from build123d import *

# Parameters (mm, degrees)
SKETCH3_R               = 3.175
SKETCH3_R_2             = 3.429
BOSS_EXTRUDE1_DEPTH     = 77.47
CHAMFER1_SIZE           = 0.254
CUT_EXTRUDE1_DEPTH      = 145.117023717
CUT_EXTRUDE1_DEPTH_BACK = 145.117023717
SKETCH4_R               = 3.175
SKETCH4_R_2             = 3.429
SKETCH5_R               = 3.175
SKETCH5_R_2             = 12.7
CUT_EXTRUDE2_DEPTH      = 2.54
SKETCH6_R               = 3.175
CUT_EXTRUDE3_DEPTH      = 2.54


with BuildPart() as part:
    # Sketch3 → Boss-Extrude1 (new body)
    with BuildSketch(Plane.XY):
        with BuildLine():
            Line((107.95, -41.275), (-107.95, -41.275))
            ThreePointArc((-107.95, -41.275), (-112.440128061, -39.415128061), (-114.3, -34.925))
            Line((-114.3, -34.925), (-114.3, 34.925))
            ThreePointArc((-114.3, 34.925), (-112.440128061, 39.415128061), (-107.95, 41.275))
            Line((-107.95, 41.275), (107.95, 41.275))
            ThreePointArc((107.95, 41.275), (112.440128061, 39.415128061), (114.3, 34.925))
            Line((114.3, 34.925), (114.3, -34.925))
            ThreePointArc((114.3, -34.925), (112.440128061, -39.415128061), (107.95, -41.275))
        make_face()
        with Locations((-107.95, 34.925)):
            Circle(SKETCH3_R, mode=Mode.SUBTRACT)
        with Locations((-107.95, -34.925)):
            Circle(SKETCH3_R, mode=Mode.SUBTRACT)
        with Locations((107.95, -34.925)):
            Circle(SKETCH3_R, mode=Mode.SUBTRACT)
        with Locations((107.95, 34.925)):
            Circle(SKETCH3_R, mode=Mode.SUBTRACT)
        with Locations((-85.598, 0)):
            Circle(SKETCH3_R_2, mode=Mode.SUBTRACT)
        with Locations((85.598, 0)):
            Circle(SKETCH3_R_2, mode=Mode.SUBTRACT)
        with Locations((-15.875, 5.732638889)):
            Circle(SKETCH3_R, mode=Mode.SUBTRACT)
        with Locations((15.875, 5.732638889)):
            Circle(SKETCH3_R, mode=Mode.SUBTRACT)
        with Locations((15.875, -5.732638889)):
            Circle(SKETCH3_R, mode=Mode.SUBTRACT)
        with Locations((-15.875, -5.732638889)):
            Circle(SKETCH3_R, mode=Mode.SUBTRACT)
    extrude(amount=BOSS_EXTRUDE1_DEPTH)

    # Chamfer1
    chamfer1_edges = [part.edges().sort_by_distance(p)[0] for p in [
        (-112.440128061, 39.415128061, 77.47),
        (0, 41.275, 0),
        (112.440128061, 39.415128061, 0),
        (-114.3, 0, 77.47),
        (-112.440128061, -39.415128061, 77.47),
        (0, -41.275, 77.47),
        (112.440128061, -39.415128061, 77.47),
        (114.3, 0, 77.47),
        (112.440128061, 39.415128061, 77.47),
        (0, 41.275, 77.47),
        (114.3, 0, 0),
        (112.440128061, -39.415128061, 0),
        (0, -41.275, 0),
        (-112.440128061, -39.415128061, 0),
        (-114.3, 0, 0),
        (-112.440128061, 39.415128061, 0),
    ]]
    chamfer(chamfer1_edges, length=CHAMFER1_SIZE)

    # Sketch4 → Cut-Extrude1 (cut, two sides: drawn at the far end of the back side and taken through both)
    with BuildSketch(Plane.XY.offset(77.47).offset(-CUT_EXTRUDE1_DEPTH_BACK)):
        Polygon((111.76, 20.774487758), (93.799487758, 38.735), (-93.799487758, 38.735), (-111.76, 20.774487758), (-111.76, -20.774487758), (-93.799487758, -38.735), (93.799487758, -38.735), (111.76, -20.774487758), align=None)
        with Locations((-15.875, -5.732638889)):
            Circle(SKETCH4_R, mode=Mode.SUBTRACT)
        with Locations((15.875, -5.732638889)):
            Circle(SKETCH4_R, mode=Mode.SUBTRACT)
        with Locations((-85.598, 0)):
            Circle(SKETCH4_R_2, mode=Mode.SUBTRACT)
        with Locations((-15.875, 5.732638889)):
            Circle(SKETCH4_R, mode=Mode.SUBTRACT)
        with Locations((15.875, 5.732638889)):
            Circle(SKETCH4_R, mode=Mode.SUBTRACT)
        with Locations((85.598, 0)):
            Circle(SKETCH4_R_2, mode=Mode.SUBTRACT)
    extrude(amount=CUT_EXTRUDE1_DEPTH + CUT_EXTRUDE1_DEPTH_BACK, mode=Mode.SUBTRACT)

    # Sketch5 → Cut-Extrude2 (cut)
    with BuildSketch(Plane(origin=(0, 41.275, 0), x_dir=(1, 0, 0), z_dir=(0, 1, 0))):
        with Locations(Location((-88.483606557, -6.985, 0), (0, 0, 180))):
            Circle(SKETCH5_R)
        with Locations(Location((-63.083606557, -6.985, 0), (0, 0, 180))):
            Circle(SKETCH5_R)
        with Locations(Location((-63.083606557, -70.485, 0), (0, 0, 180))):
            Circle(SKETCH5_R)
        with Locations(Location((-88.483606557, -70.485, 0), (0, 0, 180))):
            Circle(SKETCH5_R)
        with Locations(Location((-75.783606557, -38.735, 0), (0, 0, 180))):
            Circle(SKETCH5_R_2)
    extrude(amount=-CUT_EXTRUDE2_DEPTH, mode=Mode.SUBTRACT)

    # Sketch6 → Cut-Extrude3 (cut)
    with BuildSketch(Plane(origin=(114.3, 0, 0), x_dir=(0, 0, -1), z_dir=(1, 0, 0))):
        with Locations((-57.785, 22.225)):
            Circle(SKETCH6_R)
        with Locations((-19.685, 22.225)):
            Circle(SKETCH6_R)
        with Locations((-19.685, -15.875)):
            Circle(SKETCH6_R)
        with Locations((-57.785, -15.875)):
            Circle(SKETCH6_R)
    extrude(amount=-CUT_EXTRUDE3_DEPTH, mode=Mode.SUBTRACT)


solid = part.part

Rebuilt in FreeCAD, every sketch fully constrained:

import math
import FreeCAD as App
import Part
import Sketcher
Q = App.Units.Quantity


def edges_at(feature, points):
    """Names of the edges that pass closest to the given points."""
    edges = feature.Shape.Edges
    near = lambda p: min(range(len(edges)), key=lambda i: edges[i].distToShape(Part.Vertex(*p))[0])
    return sorted({f"Edge{near(p) + 1}" for p in points})


def add_polygon(sketch, points):
    """Adds a closed chain of lines whose ends are joined by coincident constraints."""
    first, n = sketch.GeometryCount, len(points)
    for a, b in zip(points, points[1:] + points[:1]):
        sketch.addGeometry(Part.LineSegment(App.Vector(*a, 0), App.Vector(*b, 0)), False)
    for i in range(n):
        sketch.addConstraint(Sketcher.Constraint("Coincident", first + i, 2, first + (i + 1) % n, 1))

doc = App.newDocument("Part")
params = doc.addObject("Spreadsheet::Sheet", "Params")
for row, (alias, value) in enumerate([
    ("sketch1_diameter", "0.25 in"),
    ("sketch1_diameter2", "0.27 in"),
    ("sketch1_radius", "0.25 in"),
    ("sketch1_width", "8.5 in"),
    ("pad1_length", "3.05 in"),
    ("chamfer_size", "0.01 in"),
    ("sketch2_diameter", "0.25 in"),
    ("sketch2_diameter2", "0.27 in"),
    ("sketch2_length", "1 in"),
    ("sketch3_diameter", "1 in"),
    ("sketch3_diameter2", "0.25 in"),
    ("pocket2_length", "0.1 in"),
    ("sketch4_diameter", "0.25 in"),
    ("pocket3_length", "0.1 in"),
], start=1):
    params.set(f"A{row}", alias)
    params.set(f"B{row}", "=" + value)
    params.setAlias(f"B{row}", alias)

body = doc.addObject("PartDesign::Body", "Body")

# Sketch on XY plane
sketch1 = body.newObject("Sketcher::SketchObject", "Sketch")
sketch1.AttachmentSupport = (doc.getObject("XY_Plane"), [""])
sketch1.MapMode = "FlatFace"
sketch1.addGeometry(Part.LineSegment(App.Vector(-108, -41.3, 0), App.Vector(108, -41.3, 0)), False)
sketch1.addGeometry(Part.ArcOfCircle(Part.Circle(App.Vector(108, -34.9, 0), App.Vector(0, 0, 1), 6.3), math.radians(-90), math.radians(0)), False)
sketch1.addGeometry(Part.LineSegment(App.Vector(114.3, -34.9, 0), App.Vector(114.3, 34.9, 0)), False)
sketch1.addGeometry(Part.ArcOfCircle(Part.Circle(App.Vector(108, 34.9, 0), App.Vector(0, 0, 1), 6.3), math.radians(0), math.radians(90)), False)
sketch1.addGeometry(Part.LineSegment(App.Vector(108, 41.3, 0), App.Vector(-108, 41.3, 0)), False)
sketch1.addGeometry(Part.ArcOfCircle(Part.Circle(App.Vector(-108, 34.9, 0), App.Vector(0, 0, 1), 6.3), math.radians(90), math.radians(180)), False)
sketch1.addGeometry(Part.LineSegment(App.Vector(-114.3, 34.9, 0), App.Vector(-114.3, -34.9, 0)), False)
sketch1.addGeometry(Part.ArcOfCircle(Part.Circle(App.Vector(-108, -34.9, 0), App.Vector(0, 0, 1), 6.3), math.radians(180), math.radians(270)), False)
sketch1.addGeometry(Part.Circle(App.Vector(108, -34.9, 0), App.Vector(0, 0, 1), 3.2), False)
sketch1.addGeometry(Part.Circle(App.Vector(15.9, -5.7, 0), App.Vector(0, 0, 1), 3.2), False)
sketch1.addGeometry(Part.Circle(App.Vector(-108, -34.9, 0), App.Vector(0, 0, 1), 3.2), False)
sketch1.addGeometry(Part.Circle(App.Vector(-15.9, -5.7, 0), App.Vector(0, 0, 1), 3.2), False)
sketch1.addGeometry(Part.Circle(App.Vector(85.6, 0, 0), App.Vector(0, 0, 1), 3.4), False)
sketch1.addGeometry(Part.Circle(App.Vector(15.9, 5.7, 0), App.Vector(0, 0, 1), 3.2), False)
sketch1.addGeometry(Part.Circle(App.Vector(108, 34.9, 0), App.Vector(0, 0, 1), 3.2), False)
sketch1.addGeometry(Part.Circle(App.Vector(-15.9, 5.7, 0), App.Vector(0, 0, 1), 3.2), False)
sketch1.addGeometry(Part.Circle(App.Vector(-85.6, 0, 0), App.Vector(0, 0, 1), 3.4), False)
sketch1.addGeometry(Part.Circle(App.Vector(-108, 34.9, 0), App.Vector(0, 0, 1), 3.2), False)
sketch1.addConstraint(Sketcher.Constraint("Tangent", 0, 2, 1, 1))
sketch1.addConstraint(Sketcher.Constraint("Tangent", 1, 2, 2, 1))
sketch1.addConstraint(Sketcher.Constraint("Tangent", 2, 2, 3, 1))
sketch1.addConstraint(Sketcher.Constraint("Tangent", 3, 2, 4, 1))
sketch1.addConstraint(Sketcher.Constraint("Tangent", 4, 2, 5, 1))
sketch1.addConstraint(Sketcher.Constraint("Tangent", 5, 2, 6, 1))
sketch1.addConstraint(Sketcher.Constraint("Tangent", 6, 2, 7, 1))
sketch1.addConstraint(Sketcher.Constraint("Tangent", 7, 2, 0, 1))
sketch1.addConstraint(Sketcher.Constraint("Horizontal", 0))
sketch1.addConstraint(Sketcher.Constraint("Vertical", 2))
sketch1.addConstraint(Sketcher.Constraint("Horizontal", 4))
sketch1.addConstraint(Sketcher.Constraint("Vertical", 6))
sketch1.addConstraint(Sketcher.Constraint("Coincident", 8, 3, 1, 3))
sketch1.addConstraint(Sketcher.Constraint("Coincident", 10, 3, 7, 3))
sketch1.addConstraint(Sketcher.Constraint("Coincident", 14, 3, 3, 3))
sketch1.addConstraint(Sketcher.Constraint("Coincident", 17, 3, 5, 3))
sketch1.addConstraint(Sketcher.Constraint("Equal", 1, 3))
sketch1.addConstraint(Sketcher.Constraint("Equal", 3, 5))
sketch1.addConstraint(Sketcher.Constraint("Equal", 5, 7))
sketch1.addConstraint(Sketcher.Constraint("Equal", 8, 9))
sketch1.addConstraint(Sketcher.Constraint("Equal", 9, 10))
sketch1.addConstraint(Sketcher.Constraint("Equal", 10, 11))
sketch1.addConstraint(Sketcher.Constraint("Equal", 11, 13))
sketch1.addConstraint(Sketcher.Constraint("Equal", 13, 14))
sketch1.addConstraint(Sketcher.Constraint("Equal", 14, 15))
sketch1.addConstraint(Sketcher.Constraint("Equal", 12, 16))
sketch1.addConstraint(Sketcher.Constraint("Equal", 15, 17))
sketch1.addConstraint(Sketcher.Constraint("Symmetric", 1, 3, 5, 3, -1, 1))
sketch1.addConstraint(Sketcher.Constraint("Symmetric", 11, 3, 13, 3, -1, 1))
sketch1.addConstraint(Sketcher.Constraint("Symmetric", 9, 3, 15, 3, -1, 1))
sketch1.addConstraint(Sketcher.Constraint("Symmetric", 12, 3, 16, 3, -1, 1))
sketch1.addConstraint(Sketcher.Constraint("Symmetric", 9, 3, 11, 3, -2))
sketch1.addConstraint(Sketcher.Constraint("PointOnObject", 12, 3, -1))
sketch1.addConstraint(Sketcher.Constraint("Diameter", 8, Q("0.25 in")))
sketch1.addConstraint(Sketcher.Constraint("Diameter", 12, Q("0.27 in")))
sketch1.addConstraint(Sketcher.Constraint("Radius", 1, Q("0.25 in")))
sketch1.addConstraint(Sketcher.Constraint("DistanceX", 0, 1, 0, 2, Q("8.5 in")))
sketch1.addConstraint(Sketcher.Constraint("DistanceY", 0, 2, 14, 3, Q("3 in")))
sketch1.addConstraint(Sketcher.Constraint("DistanceX", -1, 1, 12, 3, Q("3.37 in")))
sketch1.addConstraint(Sketcher.Constraint("DistanceX", 11, 3, 9, 3, Q("1.25 in")))
sketch1.addConstraint(Sketcher.Constraint("DistanceY", 9, 3, -1, 1, 5.732639))
sketch1.setExpression("Constraints[33]", "Params.sketch1_diameter")
sketch1.setExpression("Constraints[34]", "Params.sketch1_diameter2")
sketch1.setExpression("Constraints[35]", "Params.sketch1_radius")
sketch1.setExpression("Constraints[36]", "Params.sketch1_width")
pad1 = body.newObject("PartDesign::Pad", "Pad")
pad1.Profile = sketch1
pad1.setExpression("Length", "Params.pad1_length")
doc.recompute()

chamfer = body.newObject("PartDesign::Chamfer", "Chamfer")
chamfer.Base = (pad1, edges_at(pad1, [
    (-112.44, 39.415, 77.47),
    (0, 41.275, 0),
    (112.44, 39.415, 0),
    (-114.3, 0, 77.47),
    (-112.44, -39.415, 77.47),
    (0, -41.275, 77.47),
    (112.44, -39.415, 77.47),
    (114.3, 0, 77.47),
    (112.44, 39.415, 77.47),
    (0, 41.275, 77.47),
    (114.3, 0, 0),
    (112.44, -39.415, 0),
    (0, -41.275, 0),
    (-112.44, -39.415, 0),
    (-114.3, 0, 0),
    (-112.44, 39.415, 0),
]))
chamfer.setExpression("Size", "Params.chamfer_size")

# Sketch on XY plane
sketch2 = body.newObject("Sketcher::SketchObject", "Sketch001")
sketch2.AttachmentSupport = (doc.getObject("XY_Plane"), [""])
sketch2.MapMode = "FlatFace"
sketch2.AttachmentOffset = App.Placement(App.Vector(0, 0, 3.05 * 25.4), App.Rotation())
add_polygon(sketch2, [(111.8, 20.8), (93.8, 38.7), (-93.8, 38.7), (-111.8, 20.8), (-111.8, -20.8), (-93.8, -38.7), (93.8, -38.7), (111.8, -20.8)])  # lines 0-7
sketch2.addGeometry(Part.Circle(App.Vector(-15.9, -5.7, 0), App.Vector(0, 0, 1), 3.2), False)  # 8
sketch2.addGeometry(Part.Circle(App.Vector(15.9, -5.7, 0), App.Vector(0, 0, 1), 3.2), False)  # 9
sketch2.addGeometry(Part.Circle(App.Vector(-85.6, 0, 0), App.Vector(0, 0, 1), 3.4), False)  # 10
sketch2.addGeometry(Part.Circle(App.Vector(-15.9, 5.7, 0), App.Vector(0, 0, 1), 3.2), False)  # 11
sketch2.addGeometry(Part.Circle(App.Vector(85.6, 0, 0), App.Vector(0, 0, 1), 3.4), False)  # 12
sketch2.addGeometry(Part.Circle(App.Vector(15.9, 5.7, 0), App.Vector(0, 0, 1), 3.2), False)  # 13
sketch2.addConstraint(Sketcher.Constraint("Horizontal", 1))
sketch2.addConstraint(Sketcher.Constraint("Vertical", 3))
sketch2.addConstraint(Sketcher.Constraint("Horizontal", 5))
sketch2.addConstraint(Sketcher.Constraint("Vertical", 7))
sketch2.addConstraint(Sketcher.Constraint("Equal", 8, 9))
sketch2.addConstraint(Sketcher.Constraint("Equal", 9, 11))
sketch2.addConstraint(Sketcher.Constraint("Equal", 10, 12))
sketch2.addConstraint(Sketcher.Constraint("Equal", 11, 13))
sketch2.addConstraint(Sketcher.Constraint("Symmetric", 9, 3, 11, 3, -1, 1))
sketch2.addConstraint(Sketcher.Constraint("Symmetric", 10, 3, 12, 3, -1, 1))
sketch2.addConstraint(Sketcher.Constraint("Symmetric", 8, 3, 13, 3, -1, 1))
sketch2.addConstraint(Sketcher.Constraint("Symmetric", 0, 2, 4, 2, -1, 1))
sketch2.addConstraint(Sketcher.Constraint("Symmetric", 2, 2, 6, 2, -1, 1))
sketch2.addConstraint(Sketcher.Constraint("Symmetric", 8, 3, 9, 3, -2))
sketch2.addConstraint(Sketcher.Constraint("PointOnObject", 10, 3, -1))
sketch2.addConstraint(Sketcher.Constraint("Perpendicular", 0, 2))
sketch2.addConstraint(Sketcher.Constraint("Perpendicular", 2, 4))
sketch2.addConstraint(Sketcher.Constraint("Perpendicular", 4, 6))
sketch2.addConstraint(Sketcher.Constraint("Horizontal", 3, 2, 6, 2))
sketch2.addConstraint(Sketcher.Constraint("Vertical", 1, 2, 4, 2))
sketch2.addConstraint(Sketcher.Constraint("Diameter", 8, Q("0.25 in")))
sketch2.addConstraint(Sketcher.Constraint("Diameter", 10, Q("0.27 in")))
sketch2.addConstraint(Sketcher.Constraint("Distance", 0, Q("1 in")))
sketch2.addConstraint(Sketcher.Constraint("DistanceX", 2, 2, -1, 1, Q("4.4 in")))
sketch2.addConstraint(Sketcher.Constraint("DistanceX", 10, 3, -1, 1, Q("3.37 in")))
sketch2.addConstraint(Sketcher.Constraint("DistanceX", 8, 3, 9, 3, Q("1.25 in")))
sketch2.addConstraint(Sketcher.Constraint("DistanceY", 4, 2, 1, 2, Q("3.05 in")))
sketch2.addConstraint(Sketcher.Constraint("DistanceY", 8, 3, -1, 1, 5.732639))
sketch2.setExpression("Constraints[28]", "Params.sketch2_diameter")
sketch2.setExpression("Constraints[29]", "Params.sketch2_diameter2")
sketch2.setExpression("Constraints[30]", "Params.sketch2_length")
pocket1 = body.newObject("PartDesign::Pocket", "Pocket")
pocket1.Profile = sketch2
pocket1.Type = "ThroughAll"
pocket1.Midplane = True

# Sketch on XZ plane
sketch3 = body.newObject("Sketcher::SketchObject", "Sketch002")
sketch3.AttachmentSupport = (doc.getObject("XZ_Plane"), [""])
sketch3.MapMode = "FlatFace"
sketch3.AttachmentOffset = App.Placement(App.Vector(0, 0, -1.625 * 25.4), App.Rotation())
sketch3.addGeometry(Part.Circle(App.Vector(-88.5, 7, 0), App.Vector(0, 0, 1), 3.2), False)
sketch3.addGeometry(Part.Circle(App.Vector(-63.1, 7, 0), App.Vector(0, 0, 1), 3.2), False)
sketch3.addGeometry(Part.Circle(App.Vector(-63.1, 70.5, 0), App.Vector(0, 0, 1), 3.2), False)
sketch3.addGeometry(Part.Circle(App.Vector(-88.5, 70.5, 0), App.Vector(0, 0, 1), 3.2), False)
sketch3.addGeometry(Part.Circle(App.Vector(-75.8, 38.7, 0), App.Vector(0, 0, 1), 12.7), False)
sketch3.addConstraint(Sketcher.Constraint("Equal", 0, 1))
sketch3.addConstraint(Sketcher.Constraint("Equal", 1, 2))
sketch3.addConstraint(Sketcher.Constraint("Equal", 2, 3))
sketch3.addConstraint(Sketcher.Constraint("Horizontal", 0, 3, 1, 3))
sketch3.addConstraint(Sketcher.Constraint("Horizontal", 2, 3, 3, 3))
sketch3.addConstraint(Sketcher.Constraint("Vertical", 1, 3, 2, 3))
sketch3.addConstraint(Sketcher.Constraint("Vertical", 0, 3, 3, 3))
sketch3.addConstraint(Sketcher.Constraint("Diameter", 4, Q("1 in")))
sketch3.addConstraint(Sketcher.Constraint("Diameter", 0, Q("0.25 in")))
sketch3.addConstraint(Sketcher.Constraint("DistanceX", 0, 3, 1, 3, Q("1 in")))
sketch3.addConstraint(Sketcher.Constraint("DistanceY", 1, 3, 2, 3, Q("2.5 in")))
sketch3.addConstraint(Sketcher.Constraint("DistanceX", 4, 3, 1, 3, Q("0.5 in")))
sketch3.addConstraint(Sketcher.Constraint("DistanceY", 1, 3, 4, 3, Q("1.25 in")))
sketch3.addConstraint(Sketcher.Constraint("DistanceY", -1, 1, 0, 3, Q("0.275 in")))
sketch3.addConstraint(Sketcher.Constraint("DistanceX", 0, 3, -1, 1, 88.483607))
sketch3.setExpression("Constraints[7]", "Params.sketch3_diameter")
sketch3.setExpression("Constraints[8]", "Params.sketch3_diameter2")
pocket2 = body.newObject("PartDesign::Pocket", "Pocket001")
pocket2.Profile = sketch3
pocket2.setExpression("Length", "Params.pocket2_length")
pocket2.Reversed = True

# Sketch on YZ plane
sketch4 = body.newObject("Sketcher::SketchObject", "Sketch003")
sketch4.AttachmentSupport = (doc.getObject("YZ_Plane"), [""])
sketch4.MapMode = "FlatFace"
sketch4.AttachmentOffset = App.Placement(App.Vector(0, 0, 4.5 * 25.4), App.Rotation())
sketch4.addGeometry(Part.Circle(App.Vector(22.2, 57.8, 0), App.Vector(0, 0, 1), 3.2), False)
sketch4.addGeometry(Part.Circle(App.Vector(22.2, 19.7, 0), App.Vector(0, 0, 1), 3.2), False)
sketch4.addGeometry(Part.Circle(App.Vector(-15.9, 19.7, 0), App.Vector(0, 0, 1), 3.2), False)
sketch4.addGeometry(Part.Circle(App.Vector(-15.9, 57.8, 0), App.Vector(0, 0, 1), 3.2), False)
sketch4.addConstraint(Sketcher.Constraint("Equal", 0, 1))
sketch4.addConstraint(Sketcher.Constraint("Equal", 1, 2))
sketch4.addConstraint(Sketcher.Constraint("Equal", 2, 3))
sketch4.addConstraint(Sketcher.Constraint("Horizontal", 1, 3, 2, 3))
sketch4.addConstraint(Sketcher.Constraint("Horizontal", 0, 3, 3, 3))
sketch4.addConstraint(Sketcher.Constraint("Vertical", 0, 3, 1, 3))
sketch4.addConstraint(Sketcher.Constraint("Vertical", 2, 3, 3, 3))
sketch4.addConstraint(Sketcher.Constraint("Diameter", 0, Q("0.25 in")))
sketch4.addConstraint(Sketcher.Constraint("DistanceY", 1, 3, 0, 3, Q("1.5 in")))
sketch4.addConstraint(Sketcher.Constraint("DistanceX", 2, 3, 1, 3, Q("1.5 in")))
sketch4.addConstraint(Sketcher.Constraint("DistanceX", -1, 1, 0, 3, Q("0.875 in")))
sketch4.addConstraint(Sketcher.Constraint("DistanceY", -1, 1, 0, 3, Q("2.275 in")))
sketch4.setExpression("Constraints[7]", "Params.sketch4_diameter")
pocket3 = body.newObject("PartDesign::Pocket", "Pocket002")
pocket3.Profile = sketch4
pocket3.setExpression("Length", "Params.pocket3_length")

doc.recompute()
